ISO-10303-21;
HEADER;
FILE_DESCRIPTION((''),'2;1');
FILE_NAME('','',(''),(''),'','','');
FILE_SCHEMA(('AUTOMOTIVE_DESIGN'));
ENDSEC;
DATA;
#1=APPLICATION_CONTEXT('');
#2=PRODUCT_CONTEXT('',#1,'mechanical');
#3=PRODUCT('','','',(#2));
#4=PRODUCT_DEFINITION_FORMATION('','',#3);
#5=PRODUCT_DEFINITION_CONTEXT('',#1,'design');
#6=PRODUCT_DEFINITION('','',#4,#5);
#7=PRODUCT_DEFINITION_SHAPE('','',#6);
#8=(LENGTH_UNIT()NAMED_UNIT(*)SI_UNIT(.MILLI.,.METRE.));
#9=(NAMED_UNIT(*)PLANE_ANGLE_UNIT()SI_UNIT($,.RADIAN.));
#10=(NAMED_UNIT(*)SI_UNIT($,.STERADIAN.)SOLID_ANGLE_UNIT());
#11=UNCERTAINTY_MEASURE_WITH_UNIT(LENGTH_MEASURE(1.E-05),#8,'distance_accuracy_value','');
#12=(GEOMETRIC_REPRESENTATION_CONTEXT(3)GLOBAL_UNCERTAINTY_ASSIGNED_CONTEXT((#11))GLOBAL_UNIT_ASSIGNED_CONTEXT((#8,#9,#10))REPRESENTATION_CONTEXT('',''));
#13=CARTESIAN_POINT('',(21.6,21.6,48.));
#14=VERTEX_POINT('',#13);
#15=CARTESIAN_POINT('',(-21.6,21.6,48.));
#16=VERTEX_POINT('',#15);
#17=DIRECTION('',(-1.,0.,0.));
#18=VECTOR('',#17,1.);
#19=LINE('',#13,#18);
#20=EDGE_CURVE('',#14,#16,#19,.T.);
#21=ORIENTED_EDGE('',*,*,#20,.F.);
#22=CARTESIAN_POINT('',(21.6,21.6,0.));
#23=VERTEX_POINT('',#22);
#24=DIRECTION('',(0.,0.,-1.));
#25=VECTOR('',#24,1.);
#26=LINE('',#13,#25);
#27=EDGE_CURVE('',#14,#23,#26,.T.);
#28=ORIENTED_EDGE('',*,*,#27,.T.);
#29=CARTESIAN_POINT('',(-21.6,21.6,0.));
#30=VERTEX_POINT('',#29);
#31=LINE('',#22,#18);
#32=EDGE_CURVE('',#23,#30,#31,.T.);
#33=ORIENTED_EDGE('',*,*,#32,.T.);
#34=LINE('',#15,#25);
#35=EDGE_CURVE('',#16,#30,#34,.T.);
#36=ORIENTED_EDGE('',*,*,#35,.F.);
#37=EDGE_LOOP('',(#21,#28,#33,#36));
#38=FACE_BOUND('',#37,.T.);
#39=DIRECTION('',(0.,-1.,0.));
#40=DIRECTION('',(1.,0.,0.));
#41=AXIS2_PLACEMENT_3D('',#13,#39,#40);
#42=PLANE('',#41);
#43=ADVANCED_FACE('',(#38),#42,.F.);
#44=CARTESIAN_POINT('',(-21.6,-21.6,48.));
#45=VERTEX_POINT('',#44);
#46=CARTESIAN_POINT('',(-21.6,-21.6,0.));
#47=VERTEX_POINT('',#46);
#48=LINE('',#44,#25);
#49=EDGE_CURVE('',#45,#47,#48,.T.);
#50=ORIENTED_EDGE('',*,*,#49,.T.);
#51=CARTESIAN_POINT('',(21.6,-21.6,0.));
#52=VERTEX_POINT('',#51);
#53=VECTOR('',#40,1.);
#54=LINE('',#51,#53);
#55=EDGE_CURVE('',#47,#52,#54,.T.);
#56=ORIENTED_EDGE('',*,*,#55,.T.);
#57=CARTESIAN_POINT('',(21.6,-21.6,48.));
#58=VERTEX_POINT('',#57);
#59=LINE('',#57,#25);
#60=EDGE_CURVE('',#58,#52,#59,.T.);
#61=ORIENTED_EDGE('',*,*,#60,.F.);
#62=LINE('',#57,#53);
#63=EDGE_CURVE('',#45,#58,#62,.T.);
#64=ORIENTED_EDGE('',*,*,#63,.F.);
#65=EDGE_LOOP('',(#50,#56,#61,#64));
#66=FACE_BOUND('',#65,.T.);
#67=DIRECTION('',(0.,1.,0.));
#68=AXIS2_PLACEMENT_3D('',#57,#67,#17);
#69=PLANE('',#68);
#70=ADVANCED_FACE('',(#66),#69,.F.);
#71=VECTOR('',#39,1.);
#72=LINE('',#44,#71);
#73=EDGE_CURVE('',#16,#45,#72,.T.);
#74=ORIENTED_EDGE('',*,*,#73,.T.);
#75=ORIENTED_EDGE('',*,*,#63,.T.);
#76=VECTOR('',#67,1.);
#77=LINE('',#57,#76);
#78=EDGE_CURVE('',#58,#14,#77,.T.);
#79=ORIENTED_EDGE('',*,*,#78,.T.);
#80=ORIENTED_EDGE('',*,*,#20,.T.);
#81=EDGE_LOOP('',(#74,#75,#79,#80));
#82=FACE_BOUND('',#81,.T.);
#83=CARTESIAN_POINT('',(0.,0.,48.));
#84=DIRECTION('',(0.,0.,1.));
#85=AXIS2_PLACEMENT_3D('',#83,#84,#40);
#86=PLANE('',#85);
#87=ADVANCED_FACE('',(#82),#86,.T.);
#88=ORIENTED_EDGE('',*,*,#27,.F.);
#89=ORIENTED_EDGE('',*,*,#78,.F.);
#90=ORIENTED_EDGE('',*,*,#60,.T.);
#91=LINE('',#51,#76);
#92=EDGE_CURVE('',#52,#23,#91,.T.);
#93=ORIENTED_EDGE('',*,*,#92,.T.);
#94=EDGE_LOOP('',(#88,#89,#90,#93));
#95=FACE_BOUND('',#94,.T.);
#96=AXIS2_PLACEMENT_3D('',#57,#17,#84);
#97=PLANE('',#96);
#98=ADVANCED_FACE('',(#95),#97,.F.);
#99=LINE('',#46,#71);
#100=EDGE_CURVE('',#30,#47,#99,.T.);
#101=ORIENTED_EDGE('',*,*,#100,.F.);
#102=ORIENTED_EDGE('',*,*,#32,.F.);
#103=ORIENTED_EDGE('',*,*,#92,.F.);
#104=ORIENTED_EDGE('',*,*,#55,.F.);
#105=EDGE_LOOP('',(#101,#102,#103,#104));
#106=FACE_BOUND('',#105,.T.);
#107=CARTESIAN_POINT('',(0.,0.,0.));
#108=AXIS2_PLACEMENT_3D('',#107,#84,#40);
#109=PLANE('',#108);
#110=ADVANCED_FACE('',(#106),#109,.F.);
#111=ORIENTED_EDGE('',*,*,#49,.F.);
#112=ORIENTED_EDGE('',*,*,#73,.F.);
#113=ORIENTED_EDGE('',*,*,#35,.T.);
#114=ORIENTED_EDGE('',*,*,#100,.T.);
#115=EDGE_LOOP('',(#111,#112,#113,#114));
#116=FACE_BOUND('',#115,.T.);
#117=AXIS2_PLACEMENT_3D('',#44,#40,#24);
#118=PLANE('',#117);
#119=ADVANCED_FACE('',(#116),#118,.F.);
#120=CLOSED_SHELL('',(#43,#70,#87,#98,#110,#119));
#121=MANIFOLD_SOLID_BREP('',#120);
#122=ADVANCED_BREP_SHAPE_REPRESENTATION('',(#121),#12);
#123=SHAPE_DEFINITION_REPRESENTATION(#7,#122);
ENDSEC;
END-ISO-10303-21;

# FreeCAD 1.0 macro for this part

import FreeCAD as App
import Part
import Sketcher

V = App.Vector

doc = App.newDocument("Part")
params = doc.addObject("Spreadsheet::Sheet", "Params")
for row, (alias, value) in enumerate([
    ("sketch1_width", "43.2 mm"),
    ("pad1_length", "48 mm"),
], start=1):
    params.set(f"A{row}", alias)
    params.set(f"B{row}", "=" + value)
    params.setAlias(f"B{row}", alias)

body = doc.addObject("PartDesign::Body", "Body")

# Sketch on XY plane
sketch1 = body.newObject("Sketcher::SketchObject", "Sketch")
sketch1.AttachmentSupport = (doc.getObject("XY_Plane"), [""])
sketch1.MapMode = "FlatFace"
sketch1.addGeometry(Part.LineSegment(V(-21.6, 21.6, 0), V(-21.6, -21.6, 0)), False)
sketch1.addGeometry(Part.LineSegment(V(-21.6, -21.6, 0), V(21.6, -21.6, 0)), False)
sketch1.addGeometry(Part.LineSegment(V(21.6, -21.6, 0), V(21.6, 21.6, 0)), False)
sketch1.addGeometry(Part.LineSegment(V(21.6, 21.6, 0), V(-21.6, 21.6, 0)), False)
sketch1.addConstraint(Sketcher.Constraint("Coincident", 0, 2, 1, 1))
sketch1.addConstraint(Sketcher.Constraint("Coincident", 1, 2, 2, 1))
sketch1.addConstraint(Sketcher.Constraint("Coincident", 2, 2, 3, 1))
sketch1.addConstraint(Sketcher.Constraint("Coincident", 3, 2, 0, 1))
sketch1.addConstraint(Sketcher.Constraint("Vertical", 0))
sketch1.addConstraint(Sketcher.Constraint("Horizontal", 1))
sketch1.addConstraint(Sketcher.Constraint("Vertical", 2))
sketch1.addConstraint(Sketcher.Constraint("Horizontal", 3))
sketch1.addConstraint(Sketcher.Constraint("Symmetric", 0, 2, 2, 2, -1, 1))
sketch1.addConstraint(Sketcher.Constraint("Equal", 3, 0))
sketch1.addConstraint(Sketcher.Constraint("DistanceX", 1, 1, 1, 2, 43.2))
sketch1.setExpression("Constraints[10]", "Params.sketch1_width")
pad1 = body.newObject("PartDesign::Pad", "Pad")
pad1.Profile = sketch1
pad1.setExpression("Length", "Params.pad1_length")

doc.recompute()
